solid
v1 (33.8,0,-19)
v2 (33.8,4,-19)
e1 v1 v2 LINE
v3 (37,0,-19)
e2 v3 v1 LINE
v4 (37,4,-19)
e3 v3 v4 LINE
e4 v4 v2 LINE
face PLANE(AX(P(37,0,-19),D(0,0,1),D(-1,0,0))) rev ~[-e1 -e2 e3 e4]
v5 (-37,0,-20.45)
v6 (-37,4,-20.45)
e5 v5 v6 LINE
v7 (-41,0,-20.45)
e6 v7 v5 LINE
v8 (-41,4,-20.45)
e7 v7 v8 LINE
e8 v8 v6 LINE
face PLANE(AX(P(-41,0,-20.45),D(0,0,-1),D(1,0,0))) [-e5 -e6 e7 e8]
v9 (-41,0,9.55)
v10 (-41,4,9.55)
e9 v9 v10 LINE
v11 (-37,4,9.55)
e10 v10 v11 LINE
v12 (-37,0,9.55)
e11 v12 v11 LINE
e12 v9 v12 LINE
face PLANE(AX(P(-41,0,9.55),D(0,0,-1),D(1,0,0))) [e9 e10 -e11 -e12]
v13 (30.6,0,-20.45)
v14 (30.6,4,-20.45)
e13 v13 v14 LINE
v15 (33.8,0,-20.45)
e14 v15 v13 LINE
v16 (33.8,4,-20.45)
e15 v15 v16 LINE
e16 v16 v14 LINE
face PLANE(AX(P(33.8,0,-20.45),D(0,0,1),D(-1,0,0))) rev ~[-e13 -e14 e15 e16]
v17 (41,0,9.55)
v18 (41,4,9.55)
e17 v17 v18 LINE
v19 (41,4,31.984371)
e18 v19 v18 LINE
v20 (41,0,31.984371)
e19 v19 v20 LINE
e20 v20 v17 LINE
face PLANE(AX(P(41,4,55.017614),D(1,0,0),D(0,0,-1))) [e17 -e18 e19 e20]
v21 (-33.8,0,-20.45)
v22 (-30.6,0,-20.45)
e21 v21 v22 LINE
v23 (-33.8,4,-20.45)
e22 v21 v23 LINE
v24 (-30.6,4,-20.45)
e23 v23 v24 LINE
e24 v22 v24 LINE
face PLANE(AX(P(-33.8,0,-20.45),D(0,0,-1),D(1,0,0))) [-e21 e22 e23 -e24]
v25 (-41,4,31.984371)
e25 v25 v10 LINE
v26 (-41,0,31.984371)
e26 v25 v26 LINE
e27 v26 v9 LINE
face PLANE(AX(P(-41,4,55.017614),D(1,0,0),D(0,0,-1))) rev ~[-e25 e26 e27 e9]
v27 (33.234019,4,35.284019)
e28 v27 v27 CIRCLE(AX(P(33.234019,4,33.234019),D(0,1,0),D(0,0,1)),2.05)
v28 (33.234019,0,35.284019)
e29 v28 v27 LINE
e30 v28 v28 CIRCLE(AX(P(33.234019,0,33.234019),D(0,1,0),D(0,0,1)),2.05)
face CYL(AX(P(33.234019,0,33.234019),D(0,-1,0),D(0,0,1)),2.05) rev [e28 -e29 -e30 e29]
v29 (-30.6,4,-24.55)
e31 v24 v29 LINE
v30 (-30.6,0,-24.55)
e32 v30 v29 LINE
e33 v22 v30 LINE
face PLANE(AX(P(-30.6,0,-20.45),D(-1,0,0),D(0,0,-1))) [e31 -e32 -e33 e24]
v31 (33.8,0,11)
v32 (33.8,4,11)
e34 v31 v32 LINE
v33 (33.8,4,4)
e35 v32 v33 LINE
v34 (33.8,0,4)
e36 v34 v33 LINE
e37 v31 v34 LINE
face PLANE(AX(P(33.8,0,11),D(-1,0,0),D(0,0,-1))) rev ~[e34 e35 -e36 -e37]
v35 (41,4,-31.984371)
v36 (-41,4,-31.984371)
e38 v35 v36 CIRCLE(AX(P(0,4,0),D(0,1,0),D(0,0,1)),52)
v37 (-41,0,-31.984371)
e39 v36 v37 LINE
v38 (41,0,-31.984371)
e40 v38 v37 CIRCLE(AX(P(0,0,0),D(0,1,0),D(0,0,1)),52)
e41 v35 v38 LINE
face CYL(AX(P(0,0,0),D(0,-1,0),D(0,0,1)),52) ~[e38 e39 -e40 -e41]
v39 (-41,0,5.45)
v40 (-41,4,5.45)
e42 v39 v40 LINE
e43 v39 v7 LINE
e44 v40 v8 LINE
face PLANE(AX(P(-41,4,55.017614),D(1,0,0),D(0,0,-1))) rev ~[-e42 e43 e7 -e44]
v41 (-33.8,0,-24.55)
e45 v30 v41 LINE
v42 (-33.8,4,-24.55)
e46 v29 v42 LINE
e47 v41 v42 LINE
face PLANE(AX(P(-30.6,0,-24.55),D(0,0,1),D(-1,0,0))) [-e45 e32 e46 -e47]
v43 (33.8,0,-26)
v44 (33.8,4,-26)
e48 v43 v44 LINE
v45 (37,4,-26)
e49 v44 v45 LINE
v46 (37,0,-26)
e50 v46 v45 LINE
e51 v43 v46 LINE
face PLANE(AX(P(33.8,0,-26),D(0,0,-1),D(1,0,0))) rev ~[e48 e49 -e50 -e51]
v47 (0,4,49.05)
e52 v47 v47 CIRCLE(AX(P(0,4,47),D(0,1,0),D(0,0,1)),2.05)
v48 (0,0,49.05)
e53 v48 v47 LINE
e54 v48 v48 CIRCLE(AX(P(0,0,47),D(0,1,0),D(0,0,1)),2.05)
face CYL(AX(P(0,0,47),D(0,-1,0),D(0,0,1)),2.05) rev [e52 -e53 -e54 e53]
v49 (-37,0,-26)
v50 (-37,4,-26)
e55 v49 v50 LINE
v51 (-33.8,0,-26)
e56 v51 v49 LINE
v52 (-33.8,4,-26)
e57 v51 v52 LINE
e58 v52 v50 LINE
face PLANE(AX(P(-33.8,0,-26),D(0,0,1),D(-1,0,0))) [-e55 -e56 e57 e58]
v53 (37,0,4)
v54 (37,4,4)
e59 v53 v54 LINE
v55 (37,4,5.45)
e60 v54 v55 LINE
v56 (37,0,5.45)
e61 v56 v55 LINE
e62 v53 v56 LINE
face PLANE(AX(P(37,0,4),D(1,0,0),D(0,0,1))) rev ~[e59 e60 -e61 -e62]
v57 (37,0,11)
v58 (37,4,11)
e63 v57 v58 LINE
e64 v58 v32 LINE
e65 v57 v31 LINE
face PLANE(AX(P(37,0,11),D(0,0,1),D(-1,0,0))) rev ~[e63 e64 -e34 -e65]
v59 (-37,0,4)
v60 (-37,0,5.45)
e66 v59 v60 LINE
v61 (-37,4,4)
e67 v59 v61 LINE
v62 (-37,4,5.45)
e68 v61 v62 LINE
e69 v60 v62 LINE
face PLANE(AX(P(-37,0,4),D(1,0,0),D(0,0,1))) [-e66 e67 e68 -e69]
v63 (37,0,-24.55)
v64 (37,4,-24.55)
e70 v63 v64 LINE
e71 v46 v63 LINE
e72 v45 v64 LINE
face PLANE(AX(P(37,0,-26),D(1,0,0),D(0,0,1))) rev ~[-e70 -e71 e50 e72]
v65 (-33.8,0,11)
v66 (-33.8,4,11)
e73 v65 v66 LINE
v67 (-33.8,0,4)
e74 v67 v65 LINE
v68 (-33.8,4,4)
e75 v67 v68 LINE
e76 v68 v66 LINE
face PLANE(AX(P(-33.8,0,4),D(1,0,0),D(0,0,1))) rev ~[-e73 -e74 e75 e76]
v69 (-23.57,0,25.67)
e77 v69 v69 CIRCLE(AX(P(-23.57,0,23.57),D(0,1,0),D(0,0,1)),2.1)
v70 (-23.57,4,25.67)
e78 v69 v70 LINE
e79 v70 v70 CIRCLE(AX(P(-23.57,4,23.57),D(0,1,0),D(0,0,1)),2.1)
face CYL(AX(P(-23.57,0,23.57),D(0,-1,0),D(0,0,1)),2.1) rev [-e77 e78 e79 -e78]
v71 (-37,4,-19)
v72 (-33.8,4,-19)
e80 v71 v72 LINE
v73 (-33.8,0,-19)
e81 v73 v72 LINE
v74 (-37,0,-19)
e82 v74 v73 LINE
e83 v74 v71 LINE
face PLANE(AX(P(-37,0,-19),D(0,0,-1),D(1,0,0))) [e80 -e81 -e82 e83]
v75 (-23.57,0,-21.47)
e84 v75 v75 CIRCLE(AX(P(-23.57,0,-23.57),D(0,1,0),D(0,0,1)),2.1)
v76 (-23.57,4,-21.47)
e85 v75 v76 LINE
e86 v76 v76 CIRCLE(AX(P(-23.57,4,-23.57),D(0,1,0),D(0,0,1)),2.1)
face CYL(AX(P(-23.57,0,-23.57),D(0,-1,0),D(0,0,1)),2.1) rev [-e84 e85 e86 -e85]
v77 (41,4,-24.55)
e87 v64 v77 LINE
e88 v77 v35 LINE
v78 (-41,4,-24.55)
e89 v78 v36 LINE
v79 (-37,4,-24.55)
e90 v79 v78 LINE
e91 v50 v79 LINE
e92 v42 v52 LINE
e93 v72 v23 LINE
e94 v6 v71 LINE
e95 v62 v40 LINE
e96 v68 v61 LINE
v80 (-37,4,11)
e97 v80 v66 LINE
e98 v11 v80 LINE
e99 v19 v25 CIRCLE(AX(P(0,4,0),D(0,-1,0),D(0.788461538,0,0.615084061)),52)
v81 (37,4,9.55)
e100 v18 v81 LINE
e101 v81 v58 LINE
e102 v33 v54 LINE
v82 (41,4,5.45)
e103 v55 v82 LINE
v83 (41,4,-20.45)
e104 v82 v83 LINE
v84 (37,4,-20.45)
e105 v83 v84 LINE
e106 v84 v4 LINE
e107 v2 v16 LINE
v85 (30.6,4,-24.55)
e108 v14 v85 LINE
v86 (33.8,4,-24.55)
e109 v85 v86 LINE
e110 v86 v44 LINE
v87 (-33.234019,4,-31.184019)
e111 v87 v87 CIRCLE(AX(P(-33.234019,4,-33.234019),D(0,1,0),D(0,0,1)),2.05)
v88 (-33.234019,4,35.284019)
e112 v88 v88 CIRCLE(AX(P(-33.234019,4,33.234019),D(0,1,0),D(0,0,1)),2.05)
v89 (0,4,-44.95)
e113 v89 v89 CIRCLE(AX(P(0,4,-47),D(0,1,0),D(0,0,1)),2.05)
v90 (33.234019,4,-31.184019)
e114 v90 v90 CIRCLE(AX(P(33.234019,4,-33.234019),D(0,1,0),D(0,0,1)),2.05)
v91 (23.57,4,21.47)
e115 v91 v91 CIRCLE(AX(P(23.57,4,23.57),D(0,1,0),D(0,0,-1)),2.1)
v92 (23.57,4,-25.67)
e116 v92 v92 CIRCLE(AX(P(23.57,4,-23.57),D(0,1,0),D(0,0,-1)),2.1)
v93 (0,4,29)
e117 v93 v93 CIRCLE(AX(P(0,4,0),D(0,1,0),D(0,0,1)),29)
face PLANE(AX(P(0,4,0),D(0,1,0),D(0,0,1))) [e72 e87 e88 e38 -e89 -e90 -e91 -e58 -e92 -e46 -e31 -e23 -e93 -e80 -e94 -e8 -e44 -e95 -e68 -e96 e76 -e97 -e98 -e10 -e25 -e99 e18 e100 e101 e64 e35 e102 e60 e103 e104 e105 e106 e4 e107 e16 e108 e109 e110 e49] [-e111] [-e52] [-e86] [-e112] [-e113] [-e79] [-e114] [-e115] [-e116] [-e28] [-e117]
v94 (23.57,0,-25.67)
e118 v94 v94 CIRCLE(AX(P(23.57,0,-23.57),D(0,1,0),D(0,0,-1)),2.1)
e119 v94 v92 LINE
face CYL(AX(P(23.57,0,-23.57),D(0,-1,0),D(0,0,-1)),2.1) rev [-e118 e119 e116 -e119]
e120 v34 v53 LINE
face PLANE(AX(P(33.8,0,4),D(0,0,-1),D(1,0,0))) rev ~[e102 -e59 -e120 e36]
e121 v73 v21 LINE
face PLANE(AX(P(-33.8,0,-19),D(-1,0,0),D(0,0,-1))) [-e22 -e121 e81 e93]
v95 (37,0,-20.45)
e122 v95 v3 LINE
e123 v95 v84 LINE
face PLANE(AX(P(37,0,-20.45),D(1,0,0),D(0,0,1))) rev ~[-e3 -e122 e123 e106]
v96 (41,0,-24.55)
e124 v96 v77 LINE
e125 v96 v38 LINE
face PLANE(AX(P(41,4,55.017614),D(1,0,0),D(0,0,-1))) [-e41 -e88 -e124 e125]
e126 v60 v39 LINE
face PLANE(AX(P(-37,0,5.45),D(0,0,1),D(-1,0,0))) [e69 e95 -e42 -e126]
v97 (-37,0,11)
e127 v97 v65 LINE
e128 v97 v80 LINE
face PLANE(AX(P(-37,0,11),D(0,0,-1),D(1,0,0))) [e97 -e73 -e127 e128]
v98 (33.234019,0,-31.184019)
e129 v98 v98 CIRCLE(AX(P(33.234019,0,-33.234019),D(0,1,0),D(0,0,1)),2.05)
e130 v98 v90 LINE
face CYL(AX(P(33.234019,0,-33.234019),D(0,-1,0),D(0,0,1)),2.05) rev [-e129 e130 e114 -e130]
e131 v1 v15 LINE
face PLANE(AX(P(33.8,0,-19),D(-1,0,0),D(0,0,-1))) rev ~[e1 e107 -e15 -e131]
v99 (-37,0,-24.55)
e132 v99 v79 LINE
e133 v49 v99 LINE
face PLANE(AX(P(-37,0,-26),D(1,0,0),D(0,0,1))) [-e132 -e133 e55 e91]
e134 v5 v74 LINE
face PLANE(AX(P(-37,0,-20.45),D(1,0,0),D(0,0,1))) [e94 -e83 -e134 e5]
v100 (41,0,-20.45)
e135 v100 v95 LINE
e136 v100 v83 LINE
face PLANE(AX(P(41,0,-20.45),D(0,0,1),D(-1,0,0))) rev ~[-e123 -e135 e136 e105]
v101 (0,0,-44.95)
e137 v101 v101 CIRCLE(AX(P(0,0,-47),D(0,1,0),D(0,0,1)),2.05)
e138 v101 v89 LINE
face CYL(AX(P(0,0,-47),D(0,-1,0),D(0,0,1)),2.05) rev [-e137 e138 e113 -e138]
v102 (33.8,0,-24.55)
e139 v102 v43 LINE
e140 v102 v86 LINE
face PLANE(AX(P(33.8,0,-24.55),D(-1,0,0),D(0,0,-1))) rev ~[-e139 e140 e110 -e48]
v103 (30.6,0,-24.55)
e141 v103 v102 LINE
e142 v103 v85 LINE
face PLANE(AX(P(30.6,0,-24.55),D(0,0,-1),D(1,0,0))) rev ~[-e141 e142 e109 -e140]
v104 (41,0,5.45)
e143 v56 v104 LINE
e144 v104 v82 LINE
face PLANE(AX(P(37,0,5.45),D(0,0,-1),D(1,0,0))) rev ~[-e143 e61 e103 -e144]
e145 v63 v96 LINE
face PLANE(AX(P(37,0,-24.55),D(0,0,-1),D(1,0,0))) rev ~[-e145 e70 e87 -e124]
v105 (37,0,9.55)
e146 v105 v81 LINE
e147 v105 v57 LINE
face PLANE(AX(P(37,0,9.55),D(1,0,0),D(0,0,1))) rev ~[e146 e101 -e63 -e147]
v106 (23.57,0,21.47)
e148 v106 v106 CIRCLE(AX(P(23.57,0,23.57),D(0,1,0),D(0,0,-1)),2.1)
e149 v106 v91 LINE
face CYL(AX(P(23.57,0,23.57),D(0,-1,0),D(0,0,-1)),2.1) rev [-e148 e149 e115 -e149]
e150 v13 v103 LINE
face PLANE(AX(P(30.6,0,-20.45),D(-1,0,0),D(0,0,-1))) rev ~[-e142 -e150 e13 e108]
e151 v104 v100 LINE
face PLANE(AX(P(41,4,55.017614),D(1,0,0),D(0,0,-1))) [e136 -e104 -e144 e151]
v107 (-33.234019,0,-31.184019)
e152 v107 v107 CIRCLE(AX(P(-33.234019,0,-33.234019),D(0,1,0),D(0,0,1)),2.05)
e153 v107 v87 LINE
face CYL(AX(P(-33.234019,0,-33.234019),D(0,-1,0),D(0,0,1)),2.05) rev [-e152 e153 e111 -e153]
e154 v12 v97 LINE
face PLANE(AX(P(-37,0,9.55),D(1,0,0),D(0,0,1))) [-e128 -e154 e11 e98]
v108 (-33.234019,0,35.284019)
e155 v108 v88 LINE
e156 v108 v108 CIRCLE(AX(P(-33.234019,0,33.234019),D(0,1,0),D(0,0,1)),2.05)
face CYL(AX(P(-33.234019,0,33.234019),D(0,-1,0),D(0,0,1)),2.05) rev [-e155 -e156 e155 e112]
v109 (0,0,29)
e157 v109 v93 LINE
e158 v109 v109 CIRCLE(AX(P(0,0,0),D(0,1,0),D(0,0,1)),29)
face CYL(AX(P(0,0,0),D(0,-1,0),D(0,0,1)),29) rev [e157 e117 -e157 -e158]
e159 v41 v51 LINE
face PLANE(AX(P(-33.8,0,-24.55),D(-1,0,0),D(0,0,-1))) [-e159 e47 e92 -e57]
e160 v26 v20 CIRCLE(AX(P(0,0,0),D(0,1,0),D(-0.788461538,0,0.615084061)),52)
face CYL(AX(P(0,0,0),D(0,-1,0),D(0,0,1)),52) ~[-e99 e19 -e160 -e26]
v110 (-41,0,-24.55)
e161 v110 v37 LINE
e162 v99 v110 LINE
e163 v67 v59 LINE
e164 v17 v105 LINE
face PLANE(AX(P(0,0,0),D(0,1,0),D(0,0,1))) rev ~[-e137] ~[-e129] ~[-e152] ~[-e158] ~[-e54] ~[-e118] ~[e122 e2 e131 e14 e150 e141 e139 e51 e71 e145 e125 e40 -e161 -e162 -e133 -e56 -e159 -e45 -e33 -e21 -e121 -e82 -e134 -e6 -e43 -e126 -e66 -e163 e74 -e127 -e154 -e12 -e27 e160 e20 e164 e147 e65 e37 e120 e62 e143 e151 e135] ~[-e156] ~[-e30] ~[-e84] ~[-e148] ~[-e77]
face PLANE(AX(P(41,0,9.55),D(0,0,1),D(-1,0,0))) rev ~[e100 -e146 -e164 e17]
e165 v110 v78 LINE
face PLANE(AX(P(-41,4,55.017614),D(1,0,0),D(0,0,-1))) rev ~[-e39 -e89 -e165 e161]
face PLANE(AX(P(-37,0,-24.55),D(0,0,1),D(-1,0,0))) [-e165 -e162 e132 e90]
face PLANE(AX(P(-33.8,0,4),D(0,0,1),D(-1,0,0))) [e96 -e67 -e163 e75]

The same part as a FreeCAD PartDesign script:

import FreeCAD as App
import Part
import Sketcher

V = App.Vector


def add_polygon(sketch, points):
    """Adds a closed chain of lines whose ends are joined by coincident constraints."""
    first, n = sketch.GeometryCount, len(points)
    for a, b in zip(points, points[1:] + points[:1]):
        sketch.addGeometry(Part.LineSegment(App.Vector(*a, 0), App.Vector(*b, 0)), False)
    for i in range(n):
        sketch.addConstraint(Sketcher.Constraint("Coincident", first + i, 2, first + (i + 1) % n, 1))

doc = App.newDocument("Part")
body = doc.addObject("PartDesign::Body", "Body")

# Sketch on XZ plane
sketch1 = doc.addObject("Sketcher::SketchObject", "Sketch")
body.addObject(sketch1)
sketch1.AttachmentSupport = (doc.XZ_Plane, [""])
sketch1.MapMode = "FlatFace"
sketch1.addGeometry(Part.Circle(V(0, 0, 0), V(0, 0, 1), 52), False)  # 0
sketch1.addGeometry(Part.Circle(V(-33.234019, -33.234019, 0), V(0, 0, 1), 2.05), False)  # 1
add_polygon(sketch1, [(-37, -26), (-33.8, -26), (-33.8, -24.55), (-30.6, -24.55), (-30.6, -20.45), (-33.8, -20.45), (-33.8, -19), (-37, -19), (-37, -20.45), (-41, -20.45), (-41, -24.55), (-37, -24.55)])  # lines 2-13
sketch1.addGeometry(Part.Circle(V(0, -47, 0), V(0, 0, 1), 2.05), False)  # 14
sketch1.addGeometry(Part.Circle(V(-23.57, -23.57, 0), V(0, 0, 1), 2.1), False)  # 15
sketch1.addGeometry(Part.Circle(V(-47, 0, 0), V(0, 0, 1), 2.05), False)  # 16
add_polygon(sketch1, [(-37, 4), (-33.8, 4), (-33.8, 11), (-37, 11), (-37, 9.55), (-41, 9.55), (-41, 5.45), (-37, 5.45)])  # lines 17-24
sketch1.addGeometry(Part.Circle(V(-33.234019, 33.234019, 0), V(0, 0, 1), 2.05), False)  # 25
sketch1.addGeometry(Part.Circle(V(-23.57, 23.57, 0), V(0, 0, 1), 2.1), False)  # 26
sketch1.addGeometry(Part.Circle(V(23.57, -23.57, 0), V(0, 0, 1), 2.1), False)  # 27
sketch1.addGeometry(Part.Circle(V(33.234019, -33.234019, 0), V(0, 0, 1), 2.05), False)  # 28
add_polygon(sketch1, [(41, -20.45), (37, -20.45), (37, -19), (33.8, -19), (33.8, -20.45), (30.6, -20.45), (30.6, -24.55), (33.8, -24.55), (33.8, -26), (37, -26), (37, -24.55), (41, -24.55)])  # lines 29-40
sketch1.addGeometry(Part.Circle(V(47, 0, 0), V(0, 0, 1), 2.05), False)  # 41
sketch1.addGeometry(Part.Circle(V(0, 0, 0), V(0, 0, 1), 29), False)  # 42
sketch1.addGeometry(Part.Circle(V(23.57, 23.57, 0), V(0, 0, 1), 2.1), False)  # 43
sketch1.addGeometry(Part.Circle(V(0, 47, 0), V(0, 0, 1), 2.05), False)  # 44
add_polygon(sketch1, [(41, 9.55), (37, 9.55), (37, 11), (33.8, 11), (33.8, 4), (37, 4), (37, 5.45), (41, 5.45)])  # lines 45-52
sketch1.addGeometry(Part.Circle(V(33.234019, 33.234019, 0), V(0, 0, 1), 2.05), False)  # 53
sketch1.addConstraint([
    Sketcher.Constraint("Horizontal", 2),
    Sketcher.Constraint("Vertical", 3),
    Sketcher.Constraint("Horizontal", 4),
    Sketcher.Constraint("Vertical", 5),
    Sketcher.Constraint("Horizontal", 6),
    Sketcher.Constraint("Vertical", 7),
    Sketcher.Constraint("Horizontal", 8),
    Sketcher.Constraint("Vertical", 9),
    Sketcher.Constraint("Horizontal", 10),
    Sketcher.Constraint("Vertical", 11),
    Sketcher.Constraint("Horizontal", 12),
    Sketcher.Constraint("Vertical", 13),
    Sketcher.Constraint("Horizontal", 17),
    Sketcher.Constraint("Vertical", 18),
    Sketcher.Constraint("Horizontal", 19),
    Sketcher.Constraint("Vertical", 20),
    Sketcher.Constraint("Horizontal", 21),
    Sketcher.Constraint("Vertical", 22),
    Sketcher.Constraint("Horizontal", 23),
    Sketcher.Constraint("Vertical", 24),
    Sketcher.Constraint("Horizontal", 29),
    Sketcher.Constraint("Vertical", 30),
    Sketcher.Constraint("Horizontal", 31),
    Sketcher.Constraint("Vertical", 32),
    Sketcher.Constraint("Horizontal", 33),
    Sketcher.Constraint("Vertical", 34),
    Sketcher.Constraint("Horizontal", 35),
    Sketcher.Constraint("Vertical", 36),
    Sketcher.Constraint("Horizontal", 37),
    Sketcher.Constraint("Vertical", 38),
    Sketcher.Constraint("Horizontal", 39),
    Sketcher.Constraint("Vertical", 40),
    Sketcher.Constraint("Horizontal", 45),
    Sketcher.Constraint("Vertical", 46),
    Sketcher.Constraint("Horizontal", 47),
    Sketcher.Constraint("Vertical", 48),
    Sketcher.Constraint("Horizontal", 49),
    Sketcher.Constraint("Vertical", 50),
    Sketcher.Constraint("Horizontal", 51),
    Sketcher.Constraint("Vertical", 52),
    Sketcher.Constraint("Coincident", 0, 3, -1, 1),
    Sketcher.Constraint("Coincident", 42, 3, -1, 1),
    Sketcher.Constraint("Equal", 1, 14),
    Sketcher.Constraint("Equal", 14, 16),
    Sketcher.Constraint("Equal", 16, 25),
    Sketcher.Constraint("Equal", 15, 26),
    Sketcher.Constraint("Equal", 26, 27),
    Sketcher.Constraint("Equal", 25, 28),
    Sketcher.Constraint("Equal", 28, 41),
    Sketcher.Constraint("Equal", 27, 43),
    Sketcher.Constraint("Equal", 41, 44),
    Sketcher.Constraint("Equal", 44, 53),
    Sketcher.Constraint("Symmetric", 26, 3, 27, 3, -1, 1),
    Sketcher.Constraint("Symmetric", 25, 3, 28, 3, -1, 1),
    Sketcher.Constraint("Symmetric", 16, 3, 41, 3, -1, 1),
    Sketcher.Constraint("Symmetric", 15, 3, 43, 3, -1, 1),
    Sketcher.Constraint("Symmetric", 14, 3, 44, 3, -1, 1),
    Sketcher.Constraint("Symmetric", 1, 3, 53, 3, -1, 1),
    Sketcher.Constraint("Symmetric", 15, 3, 27, 3, -2),
    Sketcher.Constraint("Symmetric", 1, 3, 28, 3, -2),
    Sketcher.Constraint("Symmetric", 9, 2, 29, 2, -2),
    Sketcher.Constraint("Symmetric", 7, 2, 31, 2, -2),
    Sketcher.Constraint("Symmetric", 5, 2, 33, 2, -2),
    Sketcher.Constraint("Symmetric", 3, 2, 35, 2, -2),
    Sketcher.Constraint("Symmetric", 13, 2, 37, 2, -2),
    Sketcher.Constraint("Symmetric", 11, 2, 39, 2, -2),
    Sketcher.Constraint("Symmetric", 20, 2, 45, 2, -2),
    Sketcher.Constraint("Symmetric", 18, 2, 47, 2, -2),
    Sketcher.Constraint("Symmetric", 24, 2, 49, 2, -2),
    Sketcher.Constraint("Symmetric", 22, 2, 51, 2, -2),
    Sketcher.Constraint("PointOnObject", 14, 3, -2),
    Sketcher.Constraint("PointOnObject", 16, 3, -1),
    Sketcher.Constraint("Horizontal", 6, 2, 9, 2),
    Sketcher.Constraint("Horizontal", 4, 2, 11, 2),
    Sketcher.Constraint("Vertical", 3, 2, 6, 2),
    Sketcher.Constraint("Vertical", 9, 2, 12, 2),
    Sketcher.Constraint("Vertical", 7, 2, 17, 2),
    Sketcher.Constraint("Vertical", 13, 2, 19, 2),
    Sketcher.Constraint("Vertical", 11, 2, 21, 2),
    Sketcher.Constraint("Vertical", 20, 2, 23, 2),
    Sketcher.Constraint("Equal", 2, 4),
    Sketcher.Constraint("Equal", 3, 7),
    Sketcher.Constraint("Equal", 13, 20),
    Sketcher.Constraint("Equal", 11, 22),
    Sketcher.Constraint("Equal", 20, 24),
    Sketcher.Constraint("Diameter", 0, 104.0),
    Sketcher.Constraint("Diameter", 42, 58.0),
    Sketcher.Constraint("Diameter", 1, 4.1),
    Sketcher.Constraint("Diameter", 15, 4.2),
    Sketcher.Constraint("DistanceX", 10, 2, 10, 1, 4.0),
    Sketcher.Constraint("DistanceY", 18, 1, 18, 2, 7.0),
    Sketcher.Constraint("DistanceX", 2, 1, 2, 2, 3.2),
    Sketcher.Constraint("DistanceY", 5, 1, 5, 2, 4.1),
    Sketcher.Constraint("DistanceY", 14, 3, -1, 1, 47.0),
    Sketcher.Constraint("DistanceX", 16, 3, -1, 1, 47.0),
    Sketcher.Constraint("DistanceY", 2, 2, -1, 1, 26.0),
    Sketcher.Constraint("DistanceX", 8, 2, -1, 1, 37.0),
    Sketcher.Constraint("DistanceY", -1, 1, 17, 2, 4.0),
    Sketcher.Constraint("DistanceX", 15, 3, -1, 1, 23.57),
    Sketcher.Constraint("DistanceY", 15, 3, -1, 1, 23.57),
    Sketcher.Constraint("DistanceX", 1, 3, -1, 1, 33.234019),
    Sketcher.Constraint("DistanceY", 1, 3, -1, 1, 33.234019),
])
pad1 = doc.addObject("PartDesign::Pad", "Pad")
body.addObject(pad1)
pad1.Profile = sketch1
pad1.Length = 4
pad1.Reversed = True

# Sketch on XZ plane
sketch2 = doc.addObject("Sketcher::SketchObject", "Sketch001")
body.addObject(sketch2)
sketch2.AttachmentSupport = (doc.XZ_Plane, [""])
sketch2.MapMode = "FlatFace"
sketch2.AttachmentOffset = App.Placement(V(0, 0, -4), App.Rotation())
add_polygon(sketch2, [(-91, -105.017614), (-91, 105.017614), (91, 105.017614), (91, -105.017614)])  # lines 0-3
add_polygon(sketch2, [(41, 55.017614), (-41, 55.017614), (-41, -55.017614), (41, -55.017614)])  # lines 4-7
sketch2.addConstraint([
    Sketcher.Constraint("Vertical", 0),
    Sketcher.Constraint("Horizontal", 1),
    Sketcher.Constraint("Vertical", 2),
    Sketcher.Constraint("Horizontal", 3),
    Sketcher.Constraint("Horizontal", 4),
    Sketcher.Constraint("Vertical", 5),
    Sketcher.Constraint("Horizontal", 6),
    Sketcher.Constraint("Vertical", 7),
    Sketcher.Constraint("Symmetric", 0, 2, 2, 2, -1, 1),
    Sketcher.Constraint("Symmetric", 4, 2, 6, 2, -1, 1),
    Sketcher.Constraint("DistanceX", 1, 1, 1, 2, 182.0),
    Sketcher.Constraint("DistanceX", 4, 2, 4, 1, 82.0),
    Sketcher.Constraint("DistanceY", 4, 2, 0, 2, 50.0),
    Sketcher.Constraint("DistanceY", 0, 1, 0, 2, 210.035227),
])
pocket1 = doc.addObject("PartDesign::Pocket", "Pocket")
body.addObject(pocket1)
pocket1.Profile = sketch2
pocket1.Length = 4
pocket1.Reversed = True

doc.recompute()
